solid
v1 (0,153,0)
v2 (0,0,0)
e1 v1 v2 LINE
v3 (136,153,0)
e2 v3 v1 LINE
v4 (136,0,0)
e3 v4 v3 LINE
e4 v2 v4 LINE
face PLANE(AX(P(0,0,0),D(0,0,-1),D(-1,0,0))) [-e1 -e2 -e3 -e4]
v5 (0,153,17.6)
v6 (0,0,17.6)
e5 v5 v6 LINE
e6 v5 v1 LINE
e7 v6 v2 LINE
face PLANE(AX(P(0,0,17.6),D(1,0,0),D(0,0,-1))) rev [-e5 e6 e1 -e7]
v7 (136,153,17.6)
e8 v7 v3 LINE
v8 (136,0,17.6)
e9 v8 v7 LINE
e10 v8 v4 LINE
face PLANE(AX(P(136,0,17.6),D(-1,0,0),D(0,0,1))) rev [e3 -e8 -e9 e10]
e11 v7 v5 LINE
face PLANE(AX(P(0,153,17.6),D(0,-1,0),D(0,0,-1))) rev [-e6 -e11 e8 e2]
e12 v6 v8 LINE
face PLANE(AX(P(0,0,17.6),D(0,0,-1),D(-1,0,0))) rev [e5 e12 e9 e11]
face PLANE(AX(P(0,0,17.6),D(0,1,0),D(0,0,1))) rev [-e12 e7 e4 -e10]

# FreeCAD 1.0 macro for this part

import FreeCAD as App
import Part
import Sketcher
from FreeCAD import Vector
Q = App.Units.Quantity

doc = App.newDocument("Part")
body = doc.addObject("PartDesign::Body", "Body")

sketch1 = doc.addObject("Sketcher::SketchObject", "Sketch")
body.addObject(sketch1)
sketch1.AttachmentSupport = (doc.XY_Plane, [""])
sketch1.MapMode = "FlatFace"
sketch1.addGeometry([
    Part.LineSegment(Vector(0, 153, 0), Vector(0, 0, 0)),
    Part.LineSegment(Vector(0, 0, 0), Vector(136, 0, 0)),
    Part.LineSegment(Vector(136, 0, 0), Vector(136, 153, 0)),
    Part.LineSegment(Vector(136, 153, 0), Vector(0, 153, 0)),
], False)
sketch1.addConstraint([
    Sketcher.Constraint("Coincident", 0, 2, 1, 1),
    Sketcher.Constraint("Coincident", 1, 2, 2, 1),
    Sketcher.Constraint("Coincident", 2, 2, 3, 1),
    Sketcher.Constraint("Coincident", 3, 2, 0, 1),
    Sketcher.Constraint("Vertical", 0),
    Sketcher.Constraint("Horizontal", 1),
    Sketcher.Constraint("Vertical", 2),
    Sketcher.Constraint("Horizontal", 3),
    Sketcher.Constraint("Coincident", 0, 2, -1, 1),
    Sketcher.Constraint("DistanceX", 1, 1, 1, 2, Q("136 mm")),
    Sketcher.Constraint("DistanceY", 0, 2, 0, 1, Q("153 mm")),
])
pad1 = doc.addObject("PartDesign::Pad", "Pad")
body.addObject(pad1)
pad1.Profile = sketch1
pad1.Length = 17.6

doc.recompute()
